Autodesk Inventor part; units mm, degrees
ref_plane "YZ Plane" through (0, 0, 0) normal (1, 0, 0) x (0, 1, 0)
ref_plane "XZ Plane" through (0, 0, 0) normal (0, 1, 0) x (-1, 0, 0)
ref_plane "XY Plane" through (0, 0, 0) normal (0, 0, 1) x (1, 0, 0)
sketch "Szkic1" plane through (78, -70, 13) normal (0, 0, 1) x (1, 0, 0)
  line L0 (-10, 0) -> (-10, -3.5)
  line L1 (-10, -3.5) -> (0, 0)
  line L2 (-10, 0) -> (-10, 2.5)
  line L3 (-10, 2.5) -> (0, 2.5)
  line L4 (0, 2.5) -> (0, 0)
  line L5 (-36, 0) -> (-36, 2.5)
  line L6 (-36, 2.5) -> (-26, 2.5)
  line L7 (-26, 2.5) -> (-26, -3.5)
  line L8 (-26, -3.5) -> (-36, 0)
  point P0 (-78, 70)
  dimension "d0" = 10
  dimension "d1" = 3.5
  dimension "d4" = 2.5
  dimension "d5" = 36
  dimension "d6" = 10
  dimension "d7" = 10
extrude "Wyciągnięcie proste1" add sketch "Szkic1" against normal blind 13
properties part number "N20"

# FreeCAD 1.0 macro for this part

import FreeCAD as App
import Part
import Sketcher

V = App.Vector


def add_polygon(sketch, points):
    """Adds a closed chain of lines whose ends are joined by coincident constraints."""
    first, n = sketch.GeometryCount, len(points)
    for a, b in zip(points, points[1:] + points[:1]):
        sketch.addGeometry(Part.LineSegment(App.Vector(*a, 0), App.Vector(*b, 0)), False)
    for i in range(n):
        sketch.addConstraint(Sketcher.Constraint("Coincident", first + i, 2, first + (i + 1) % n, 1))

doc = App.newDocument("Part")
body = doc.addObject("PartDesign::Body", "Body")
body.AllowCompound = True

sketch1 = body.newObject("Sketcher::SketchObject", "Sketch")
sketch1.AttachmentSupport = (doc.getObject("XY_Plane"), [""])
sketch1.MapMode = "FlatFace"
sketch1.AttachmentOffset = App.Placement(V(0, 0, 13), App.Rotation())
add_polygon(sketch1, [(68, -67.5), (68, -73.5), (78, -70), (78, -67.5)])
add_polygon(sketch1, [(42, -67.5), (42, -70), (52, -73.5), (52, -67.5)])
sketch1.addConstraint(Sketcher.Constraint("Vertical", 0))
sketch1.addConstraint(Sketcher.Constraint("Vertical", 2))
sketch1.addConstraint(Sketcher.Constraint("Horizontal", 3))
sketch1.addConstraint(Sketcher.Constraint("Vertical", 4))
sketch1.addConstraint(Sketcher.Constraint("Vertical", 6))
sketch1.addConstraint(Sketcher.Constraint("Horizontal", 7))
sketch1.addConstraint(Sketcher.Constraint("Horizontal", 1, 2, 4, 2))
sketch1.addConstraint(Sketcher.Constraint("Horizontal", 0, 2, 5, 2))
sketch1.addConstraint(Sketcher.Constraint("Horizontal", 3, 2, 6, 2))
sketch1.addConstraint(Sketcher.Constraint("Equal", 3, 7))
sketch1.addConstraint(Sketcher.Constraint("DistanceX", 3, 2, 3, 1, 10.0))
sketch1.addConstraint(Sketcher.Constraint("DistanceY", 2, 1, 2, 2, 2.5))
sketch1.addConstraint(Sketcher.Constraint("DistanceX", 4, 2, 1, 2, 36.0))
sketch1.addConstraint(Sketcher.Constraint("DistanceY", 0, 2, 1, 2, 3.5))
sketch1.addConstraint(Sketcher.Constraint("DistanceX", -1, 1, 0, 2, 68.0))
sketch1.addConstraint(Sketcher.Constraint("DistanceY", 1, 2, -1, 1, 70.0))
pad1 = body.newObject("PartDesign::Pad", "Pad")
pad1.Profile = sketch1
pad1.Length = 13
pad1.Reversed = True

doc.recompute()
